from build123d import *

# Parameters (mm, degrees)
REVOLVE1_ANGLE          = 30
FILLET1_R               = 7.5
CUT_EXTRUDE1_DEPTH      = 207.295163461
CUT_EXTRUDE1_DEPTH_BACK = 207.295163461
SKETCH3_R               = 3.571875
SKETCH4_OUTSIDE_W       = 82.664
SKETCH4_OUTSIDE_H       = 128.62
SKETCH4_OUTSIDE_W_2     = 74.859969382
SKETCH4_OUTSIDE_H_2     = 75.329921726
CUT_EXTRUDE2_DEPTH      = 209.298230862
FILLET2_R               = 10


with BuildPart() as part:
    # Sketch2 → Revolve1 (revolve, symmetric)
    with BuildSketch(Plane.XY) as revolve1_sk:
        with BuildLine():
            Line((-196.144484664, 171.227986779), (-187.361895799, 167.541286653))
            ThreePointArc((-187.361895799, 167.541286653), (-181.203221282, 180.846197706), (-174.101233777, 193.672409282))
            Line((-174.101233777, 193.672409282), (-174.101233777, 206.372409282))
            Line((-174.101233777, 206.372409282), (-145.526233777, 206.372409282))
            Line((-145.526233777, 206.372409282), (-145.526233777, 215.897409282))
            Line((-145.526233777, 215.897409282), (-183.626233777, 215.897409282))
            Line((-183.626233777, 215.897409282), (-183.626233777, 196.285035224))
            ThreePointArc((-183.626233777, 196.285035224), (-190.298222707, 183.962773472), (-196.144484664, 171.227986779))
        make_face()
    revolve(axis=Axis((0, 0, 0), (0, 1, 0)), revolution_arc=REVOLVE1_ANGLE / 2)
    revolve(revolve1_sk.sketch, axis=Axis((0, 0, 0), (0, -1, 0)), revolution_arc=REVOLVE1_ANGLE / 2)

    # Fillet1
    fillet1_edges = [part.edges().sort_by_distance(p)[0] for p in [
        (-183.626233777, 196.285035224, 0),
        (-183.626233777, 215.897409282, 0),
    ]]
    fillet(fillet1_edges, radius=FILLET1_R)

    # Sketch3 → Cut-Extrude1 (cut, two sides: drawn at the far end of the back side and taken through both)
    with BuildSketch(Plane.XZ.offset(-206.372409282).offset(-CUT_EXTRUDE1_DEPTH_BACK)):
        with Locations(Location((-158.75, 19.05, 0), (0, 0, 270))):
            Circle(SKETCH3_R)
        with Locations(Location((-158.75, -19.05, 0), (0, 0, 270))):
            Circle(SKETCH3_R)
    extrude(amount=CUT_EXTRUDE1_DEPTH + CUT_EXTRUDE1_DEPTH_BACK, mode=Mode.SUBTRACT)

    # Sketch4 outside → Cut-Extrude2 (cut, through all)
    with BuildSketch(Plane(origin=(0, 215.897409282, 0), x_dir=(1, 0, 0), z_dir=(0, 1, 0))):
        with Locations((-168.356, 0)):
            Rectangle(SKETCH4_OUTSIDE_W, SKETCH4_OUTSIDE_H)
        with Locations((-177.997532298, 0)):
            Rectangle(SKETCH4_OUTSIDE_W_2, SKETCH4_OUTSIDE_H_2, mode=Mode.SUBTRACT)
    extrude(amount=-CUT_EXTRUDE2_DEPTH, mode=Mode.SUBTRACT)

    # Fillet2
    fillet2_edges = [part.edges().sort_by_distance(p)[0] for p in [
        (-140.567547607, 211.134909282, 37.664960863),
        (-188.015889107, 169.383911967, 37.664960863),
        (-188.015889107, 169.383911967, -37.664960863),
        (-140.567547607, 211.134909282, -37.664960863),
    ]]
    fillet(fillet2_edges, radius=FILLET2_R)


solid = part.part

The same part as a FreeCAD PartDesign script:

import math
import FreeCAD as App
import Part
import Sketcher
Q = App.Units.Quantity


def edges_at(feature, points):
    """Names of the edges that pass closest to the given points."""
    edges = feature.Shape.Edges
    near = lambda p: min(range(len(edges)), key=lambda i: edges[i].distToShape(Part.Vertex(*p))[0])
    return sorted({f"Edge{near(p) + 1}" for p in points})


def add_polygon(sketch, points):
    """Adds a closed chain of lines whose ends are joined by coincident constraints."""
    first, n = sketch.GeometryCount, len(points)
    for a, b in zip(points, points[1:] + points[:1]):
        sketch.addGeometry(Part.LineSegment(App.Vector(*a, 0), App.Vector(*b, 0)), False)
    for i in range(n):
        sketch.addConstraint(Sketcher.Constraint("Coincident", first + i, 2, first + (i + 1) % n, 1))

doc = App.newDocument("Part")
params = doc.addObject("Spreadsheet::Sheet", "Params")
for row, (alias, value) in enumerate([
    ("sketch1_radius", "8 in"),
    ("sketch1_width", "1.5 in"),
    ("sketch1_height", "0.5 in"),
    ("sketch1_radius2", "8.375 in"),
    ("sketch1_width2", "1.125 in"),
    ("revolution_angle", "15 deg"),
    ("sketch2_radius", "8 in"),
    ("sketch2_width", "1.5 in"),
    ("sketch2_height", "0.5 in"),
    ("sketch2_radius2", "8.375 in"),
    ("sketch2_width2", "1.125 in"),
    ("revolution2_angle", "15 deg"),
    ("fillet_radius", "7.5 mm"),
    ("sketch3_diameter", "0.28125 in"),
    ("fillet2_radius", "10 mm"),
], start=1):
    params.set(f"A{row}", alias)
    params.set(f"B{row}", "=" + value)
    params.setAlias(f"B{row}", alias)

body = doc.addObject("PartDesign::Body", "Body")

sketch1 = body.newObject("Sketcher::SketchObject", "Sketch")
sketch1.AttachmentSupport = (doc.getObject("XY_Plane"), [""])
sketch1.MapMode = "FlatFace"
sketch1.addGeometry([
    Part.LineSegment(App.Vector(-196.144485, 171.227987, 0), App.Vector(-187.361896, 167.541287, 0)),
    Part.ArcOfCircle(Part.Circle(App.Vector(0, 88.891684, 0), App.Vector(0, 0, 1), 203.2), math.radians(148.958876), math.radians(157.228615)),
    Part.LineSegment(App.Vector(-174.101234, 193.672409, 0), App.Vector(-174.101234, 206.372409, 0)),
    Part.LineSegment(App.Vector(-174.101234, 206.372409, 0), App.Vector(-145.526234, 206.372409, 0)),
    Part.LineSegment(App.Vector(-145.526234, 206.372409, 0), App.Vector(-145.526234, 215.897409, 0)),
    Part.LineSegment(App.Vector(-145.526234, 215.897409, 0), App.Vector(-183.626234, 215.897409, 0)),
    Part.LineSegment(App.Vector(-183.626234, 215.897409, 0), App.Vector(-183.626234, 196.285035, 0)),
    Part.ArcOfCircle(Part.Circle(App.Vector(0, 88.891684, 0), App.Vector(0, 0, 1), 212.725), math.radians(149.678874), math.radians(157.228615)),
], False)
sketch1.addConstraint([
    Sketcher.Constraint("Coincident", 0, 2, 1, 2),
    Sketcher.Constraint("Coincident", 1, 1, 2, 1),
    Sketcher.Constraint("Coincident", 2, 2, 3, 1),
    Sketcher.Constraint("Coincident", 3, 2, 4, 1),
    Sketcher.Constraint("Coincident", 4, 2, 5, 1),
    Sketcher.Constraint("Coincident", 5, 2, 6, 1),
    Sketcher.Constraint("Coincident", 6, 2, 7, 1),
    Sketcher.Constraint("Coincident", 7, 2, 0, 1),
    Sketcher.Constraint("Vertical", 2),
    Sketcher.Constraint("Horizontal", 3),
    Sketcher.Constraint("Vertical", 4),
    Sketcher.Constraint("Horizontal", 5),
    Sketcher.Constraint("Vertical", 6),
    Sketcher.Constraint("Coincident", 7, 3, 1, 3),
    Sketcher.Constraint("PointOnObject", 1, 3, -2),
    Sketcher.Constraint("Radius", 1, Q("8 in")),
    Sketcher.Constraint("DistanceX", 5, 2, 5, 1, Q("1.5 in")),
    Sketcher.Constraint("DistanceY", 2, 1, 2, 2, Q("0.5 in")),
    Sketcher.Constraint("Radius", 7, Q("8.375 in")),
    Sketcher.Constraint("DistanceX", 3, 1, 3, 2, Q("1.125 in")),
    Sketcher.Constraint("DistanceY", 4, 1, 4, 2, Q("0.375 in")),
    Sketcher.Constraint("DistanceY", 0, 2, 7, 2, Q("3.6867 mm")),
    Sketcher.Constraint("DistanceY", 6, 2, 6, 1, Q("19.612374 mm")),
    Sketcher.Constraint("DistanceY", -1, 1, 2, 2, Q("206.372409 mm")),
    Sketcher.Constraint("DistanceY", 0, 2, 6, 2, Q("28.743749 mm")),
])
sketch1.setExpression("Constraints[15]", "Params.sketch1_radius")
sketch1.setExpression("Constraints[16]", "Params.sketch1_width")
sketch1.setExpression("Constraints[17]", "Params.sketch1_height")
sketch1.setExpression("Constraints[18]", "Params.sketch1_radius2")
sketch1.setExpression("Constraints[19]", "Params.sketch1_width2")
revolution = body.newObject("PartDesign::Revolution", "Revolution")
revolution.Profile = sketch1
revolution.ReferenceAxis = (sketch1, ["V_Axis"])
revolution.setExpression("Angle", "Params.revolution_angle")

sketch2 = body.newObject("Sketcher::SketchObject", "Sketch001")
sketch2.AttachmentSupport = (doc.getObject("XY_Plane"), [""])
sketch2.MapMode = "FlatFace"
sketch2.addGeometry([
    Part.LineSegment(App.Vector(-196.144485, 171.227987, 0), App.Vector(-187.361896, 167.541287, 0)),
    Part.ArcOfCircle(Part.Circle(App.Vector(0, 88.891684, 0), App.Vector(0, 0, 1), 203.2), math.radians(148.958876), math.radians(157.228615)),
    Part.LineSegment(App.Vector(-174.101234, 193.672409, 0), App.Vector(-174.101234, 206.372409, 0)),
    Part.LineSegment(App.Vector(-174.101234, 206.372409, 0), App.Vector(-145.526234, 206.372409, 0)),
    Part.LineSegment(App.Vector(-145.526234, 206.372409, 0), App.Vector(-145.526234, 215.897409, 0)),
    Part.LineSegment(App.Vector(-145.526234, 215.897409, 0), App.Vector(-183.626234, 215.897409, 0)),
    Part.LineSegment(App.Vector(-183.626234, 215.897409, 0), App.Vector(-183.626234, 196.285035, 0)),
    Part.ArcOfCircle(Part.Circle(App.Vector(0, 88.891684, 0), App.Vector(0, 0, 1), 212.725), math.radians(149.678874), math.radians(157.228615)),
], False)
sketch2.addConstraint([
    Sketcher.Constraint("Coincident", 0, 2, 1, 2),
    Sketcher.Constraint("Coincident", 1, 1, 2, 1),
    Sketcher.Constraint("Coincident", 2, 2, 3, 1),
    Sketcher.Constraint("Coincident", 3, 2, 4, 1),
    Sketcher.Constraint("Coincident", 4, 2, 5, 1),
    Sketcher.Constraint("Coincident", 5, 2, 6, 1),
    Sketcher.Constraint("Coincident", 6, 2, 7, 1),
    Sketcher.Constraint("Coincident", 7, 2, 0, 1),
    Sketcher.Constraint("Vertical", 2),
    Sketcher.Constraint("Horizontal", 3),
    Sketcher.Constraint("Vertical", 4),
    Sketcher.Constraint("Horizontal", 5),
    Sketcher.Constraint("Vertical", 6),
    Sketcher.Constraint("Coincident", 7, 3, 1, 3),
    Sketcher.Constraint("PointOnObject", 1, 3, -2),
    Sketcher.Constraint("Radius", 1, Q("8 in")),
    Sketcher.Constraint("DistanceX", 5, 2, 5, 1, Q("1.5 in")),
    Sketcher.Constraint("DistanceY", 2, 1, 2, 2, Q("0.5 in")),
    Sketcher.Constraint("Radius", 7, Q("8.375 in")),
    Sketcher.Constraint("DistanceX", 3, 1, 3, 2, Q("1.125 in")),
    Sketcher.Constraint("DistanceY", 4, 1, 4, 2, Q("0.375 in")),
    Sketcher.Constraint("DistanceY", 0, 2, 7, 2, Q("3.6867 mm")),
    Sketcher.Constraint("DistanceY", 6, 2, 6, 1, Q("19.612374 mm")),
    Sketcher.Constraint("DistanceY", -1, 1, 2, 2, Q("206.372409 mm")),
    Sketcher.Constraint("DistanceY", 0, 2, 6, 2, Q("28.743749 mm")),
])
sketch2.setExpression("Constraints[15]", "Params.sketch2_radius")
sketch2.setExpression("Constraints[16]", "Params.sketch2_width")
sketch2.setExpression("Constraints[17]", "Params.sketch2_height")
sketch2.setExpression("Constraints[18]", "Params.sketch2_radius2")
sketch2.setExpression("Constraints[19]", "Params.sketch2_width2")
revolution2 = body.newObject("PartDesign::Revolution", "Revolution001")
revolution2.Profile = sketch2
revolution2.ReferenceAxis = (sketch2, ["V_Axis"])
revolution2.setExpression("Angle", "Params.revolution2_angle")
revolution2.Reversed = True
doc.recompute()

fillet = body.newObject("PartDesign::Fillet", "Fillet")
fillet.Base = (revolution2, edges_at(revolution2, [(-183.626, 196.285, 0), (-183.626, 215.897, 0)]))
fillet.setExpression("Radius", "Params.fillet_radius")

sketch3 = body.newObject("Sketcher::SketchObject", "Sketch002")
sketch3.AttachmentSupport = (doc.getObject("XZ_Plane"), [""])
sketch3.MapMode = "FlatFace"
sketch3.AttachmentOffset = App.Placement(App.Vector(0, 0, -206.372409), App.Rotation())
sketch3.addGeometry([
    Part.Circle(App.Vector(-158.75, 19.05, 0), App.Vector(0, 0, 1), 3.571875),
    Part.Circle(App.Vector(-158.75, -19.05, 0), App.Vector(0, 0, 1), 3.571875),
], False)
sketch3.addConstraint([
    Sketcher.Constraint("Equal", 0, 1),
    Sketcher.Constraint("Symmetric", 0, 3, 1, 3, -1),
    Sketcher.Constraint("Diameter", 0, Q("0.28125 in")),
    Sketcher.Constraint("DistanceY", 1, 3, 0, 3, Q("1.5 in")),
    Sketcher.Constraint("DistanceX", 0, 3, -1, 1, Q("6.25 in")),
])
sketch3.setExpression("Constraints[2]", "Params.sketch3_diameter")
pocket1 = body.newObject("PartDesign::Pocket", "Pocket")
pocket1.Profile = sketch3
pocket1.Type = "ThroughAll"
pocket1.Midplane = True

sketch4 = body.newObject("Sketcher::SketchObject", "Sketch003")
sketch4.AttachmentSupport = (doc.getObject("XZ_Plane"), [""])
sketch4.MapMode = "FlatFace"
sketch4.AttachmentOffset = App.Placement(App.Vector(0, 0, -215.897409), App.Rotation())
add_polygon(sketch4, [(-209.688, 37.664961), (-209.688, 64.31), (-127.024, 64.31), (-127.024, -64.31), (-209.688, -64.31), (-209.688, -37.664961), (-140.567548, -37.664961), (-140.567548, 37.664961)])
sketch4.addConstraint([
    Sketcher.Constraint("Vertical", 0),
    Sketcher.Constraint("Horizontal", 1),
    Sketcher.Constraint("Vertical", 2),
    Sketcher.Constraint("Horizontal", 3),
    Sketcher.Constraint("Vertical", 4),
    Sketcher.Constraint("Horizontal", 5),
    Sketcher.Constraint("Vertical", 6),
    Sketcher.Constraint("Horizontal", 7),
    Sketcher.Constraint("Symmetric", 0, 2, 3, 2, -1),
    Sketcher.Constraint("Equal", 0, 4),
    Sketcher.Constraint("DistanceX", 1, 1, 1, 2, Q("82.664 mm")),
    Sketcher.Constraint("DistanceY", 2, 2, 2, 1, Q("128.62 mm")),
    Sketcher.Constraint("DistanceY", 0, 1, 0, 2, Q("26.645039 mm")),
    Sketcher.Constraint("DistanceX", 0, 2, -1, 1, Q("209.688 mm")),
    Sketcher.Constraint("DistanceX", 5, 1, 5, 2, Q("69.120452 mm")),
])
pocket2 = body.newObject("PartDesign::Pocket", "Pocket001")
pocket2.Profile = sketch4
pocket2.Type = "ThroughAll"
pocket2.Reversed = True
doc.recompute()

fillet2 = body.newObject("PartDesign::Fillet", "Fillet001")
fillet2.Base = (pocket2, edges_at(pocket2, [
    (-140.568, 211.135, 37.665),
    (-188.016, 169.384, 37.665),
    (-188.016, 169.384, -37.665),
    (-140.568, 211.135, -37.665),
]))
fillet2.setExpression("Radius", "Params.fillet2_radius")

doc.recompute()
